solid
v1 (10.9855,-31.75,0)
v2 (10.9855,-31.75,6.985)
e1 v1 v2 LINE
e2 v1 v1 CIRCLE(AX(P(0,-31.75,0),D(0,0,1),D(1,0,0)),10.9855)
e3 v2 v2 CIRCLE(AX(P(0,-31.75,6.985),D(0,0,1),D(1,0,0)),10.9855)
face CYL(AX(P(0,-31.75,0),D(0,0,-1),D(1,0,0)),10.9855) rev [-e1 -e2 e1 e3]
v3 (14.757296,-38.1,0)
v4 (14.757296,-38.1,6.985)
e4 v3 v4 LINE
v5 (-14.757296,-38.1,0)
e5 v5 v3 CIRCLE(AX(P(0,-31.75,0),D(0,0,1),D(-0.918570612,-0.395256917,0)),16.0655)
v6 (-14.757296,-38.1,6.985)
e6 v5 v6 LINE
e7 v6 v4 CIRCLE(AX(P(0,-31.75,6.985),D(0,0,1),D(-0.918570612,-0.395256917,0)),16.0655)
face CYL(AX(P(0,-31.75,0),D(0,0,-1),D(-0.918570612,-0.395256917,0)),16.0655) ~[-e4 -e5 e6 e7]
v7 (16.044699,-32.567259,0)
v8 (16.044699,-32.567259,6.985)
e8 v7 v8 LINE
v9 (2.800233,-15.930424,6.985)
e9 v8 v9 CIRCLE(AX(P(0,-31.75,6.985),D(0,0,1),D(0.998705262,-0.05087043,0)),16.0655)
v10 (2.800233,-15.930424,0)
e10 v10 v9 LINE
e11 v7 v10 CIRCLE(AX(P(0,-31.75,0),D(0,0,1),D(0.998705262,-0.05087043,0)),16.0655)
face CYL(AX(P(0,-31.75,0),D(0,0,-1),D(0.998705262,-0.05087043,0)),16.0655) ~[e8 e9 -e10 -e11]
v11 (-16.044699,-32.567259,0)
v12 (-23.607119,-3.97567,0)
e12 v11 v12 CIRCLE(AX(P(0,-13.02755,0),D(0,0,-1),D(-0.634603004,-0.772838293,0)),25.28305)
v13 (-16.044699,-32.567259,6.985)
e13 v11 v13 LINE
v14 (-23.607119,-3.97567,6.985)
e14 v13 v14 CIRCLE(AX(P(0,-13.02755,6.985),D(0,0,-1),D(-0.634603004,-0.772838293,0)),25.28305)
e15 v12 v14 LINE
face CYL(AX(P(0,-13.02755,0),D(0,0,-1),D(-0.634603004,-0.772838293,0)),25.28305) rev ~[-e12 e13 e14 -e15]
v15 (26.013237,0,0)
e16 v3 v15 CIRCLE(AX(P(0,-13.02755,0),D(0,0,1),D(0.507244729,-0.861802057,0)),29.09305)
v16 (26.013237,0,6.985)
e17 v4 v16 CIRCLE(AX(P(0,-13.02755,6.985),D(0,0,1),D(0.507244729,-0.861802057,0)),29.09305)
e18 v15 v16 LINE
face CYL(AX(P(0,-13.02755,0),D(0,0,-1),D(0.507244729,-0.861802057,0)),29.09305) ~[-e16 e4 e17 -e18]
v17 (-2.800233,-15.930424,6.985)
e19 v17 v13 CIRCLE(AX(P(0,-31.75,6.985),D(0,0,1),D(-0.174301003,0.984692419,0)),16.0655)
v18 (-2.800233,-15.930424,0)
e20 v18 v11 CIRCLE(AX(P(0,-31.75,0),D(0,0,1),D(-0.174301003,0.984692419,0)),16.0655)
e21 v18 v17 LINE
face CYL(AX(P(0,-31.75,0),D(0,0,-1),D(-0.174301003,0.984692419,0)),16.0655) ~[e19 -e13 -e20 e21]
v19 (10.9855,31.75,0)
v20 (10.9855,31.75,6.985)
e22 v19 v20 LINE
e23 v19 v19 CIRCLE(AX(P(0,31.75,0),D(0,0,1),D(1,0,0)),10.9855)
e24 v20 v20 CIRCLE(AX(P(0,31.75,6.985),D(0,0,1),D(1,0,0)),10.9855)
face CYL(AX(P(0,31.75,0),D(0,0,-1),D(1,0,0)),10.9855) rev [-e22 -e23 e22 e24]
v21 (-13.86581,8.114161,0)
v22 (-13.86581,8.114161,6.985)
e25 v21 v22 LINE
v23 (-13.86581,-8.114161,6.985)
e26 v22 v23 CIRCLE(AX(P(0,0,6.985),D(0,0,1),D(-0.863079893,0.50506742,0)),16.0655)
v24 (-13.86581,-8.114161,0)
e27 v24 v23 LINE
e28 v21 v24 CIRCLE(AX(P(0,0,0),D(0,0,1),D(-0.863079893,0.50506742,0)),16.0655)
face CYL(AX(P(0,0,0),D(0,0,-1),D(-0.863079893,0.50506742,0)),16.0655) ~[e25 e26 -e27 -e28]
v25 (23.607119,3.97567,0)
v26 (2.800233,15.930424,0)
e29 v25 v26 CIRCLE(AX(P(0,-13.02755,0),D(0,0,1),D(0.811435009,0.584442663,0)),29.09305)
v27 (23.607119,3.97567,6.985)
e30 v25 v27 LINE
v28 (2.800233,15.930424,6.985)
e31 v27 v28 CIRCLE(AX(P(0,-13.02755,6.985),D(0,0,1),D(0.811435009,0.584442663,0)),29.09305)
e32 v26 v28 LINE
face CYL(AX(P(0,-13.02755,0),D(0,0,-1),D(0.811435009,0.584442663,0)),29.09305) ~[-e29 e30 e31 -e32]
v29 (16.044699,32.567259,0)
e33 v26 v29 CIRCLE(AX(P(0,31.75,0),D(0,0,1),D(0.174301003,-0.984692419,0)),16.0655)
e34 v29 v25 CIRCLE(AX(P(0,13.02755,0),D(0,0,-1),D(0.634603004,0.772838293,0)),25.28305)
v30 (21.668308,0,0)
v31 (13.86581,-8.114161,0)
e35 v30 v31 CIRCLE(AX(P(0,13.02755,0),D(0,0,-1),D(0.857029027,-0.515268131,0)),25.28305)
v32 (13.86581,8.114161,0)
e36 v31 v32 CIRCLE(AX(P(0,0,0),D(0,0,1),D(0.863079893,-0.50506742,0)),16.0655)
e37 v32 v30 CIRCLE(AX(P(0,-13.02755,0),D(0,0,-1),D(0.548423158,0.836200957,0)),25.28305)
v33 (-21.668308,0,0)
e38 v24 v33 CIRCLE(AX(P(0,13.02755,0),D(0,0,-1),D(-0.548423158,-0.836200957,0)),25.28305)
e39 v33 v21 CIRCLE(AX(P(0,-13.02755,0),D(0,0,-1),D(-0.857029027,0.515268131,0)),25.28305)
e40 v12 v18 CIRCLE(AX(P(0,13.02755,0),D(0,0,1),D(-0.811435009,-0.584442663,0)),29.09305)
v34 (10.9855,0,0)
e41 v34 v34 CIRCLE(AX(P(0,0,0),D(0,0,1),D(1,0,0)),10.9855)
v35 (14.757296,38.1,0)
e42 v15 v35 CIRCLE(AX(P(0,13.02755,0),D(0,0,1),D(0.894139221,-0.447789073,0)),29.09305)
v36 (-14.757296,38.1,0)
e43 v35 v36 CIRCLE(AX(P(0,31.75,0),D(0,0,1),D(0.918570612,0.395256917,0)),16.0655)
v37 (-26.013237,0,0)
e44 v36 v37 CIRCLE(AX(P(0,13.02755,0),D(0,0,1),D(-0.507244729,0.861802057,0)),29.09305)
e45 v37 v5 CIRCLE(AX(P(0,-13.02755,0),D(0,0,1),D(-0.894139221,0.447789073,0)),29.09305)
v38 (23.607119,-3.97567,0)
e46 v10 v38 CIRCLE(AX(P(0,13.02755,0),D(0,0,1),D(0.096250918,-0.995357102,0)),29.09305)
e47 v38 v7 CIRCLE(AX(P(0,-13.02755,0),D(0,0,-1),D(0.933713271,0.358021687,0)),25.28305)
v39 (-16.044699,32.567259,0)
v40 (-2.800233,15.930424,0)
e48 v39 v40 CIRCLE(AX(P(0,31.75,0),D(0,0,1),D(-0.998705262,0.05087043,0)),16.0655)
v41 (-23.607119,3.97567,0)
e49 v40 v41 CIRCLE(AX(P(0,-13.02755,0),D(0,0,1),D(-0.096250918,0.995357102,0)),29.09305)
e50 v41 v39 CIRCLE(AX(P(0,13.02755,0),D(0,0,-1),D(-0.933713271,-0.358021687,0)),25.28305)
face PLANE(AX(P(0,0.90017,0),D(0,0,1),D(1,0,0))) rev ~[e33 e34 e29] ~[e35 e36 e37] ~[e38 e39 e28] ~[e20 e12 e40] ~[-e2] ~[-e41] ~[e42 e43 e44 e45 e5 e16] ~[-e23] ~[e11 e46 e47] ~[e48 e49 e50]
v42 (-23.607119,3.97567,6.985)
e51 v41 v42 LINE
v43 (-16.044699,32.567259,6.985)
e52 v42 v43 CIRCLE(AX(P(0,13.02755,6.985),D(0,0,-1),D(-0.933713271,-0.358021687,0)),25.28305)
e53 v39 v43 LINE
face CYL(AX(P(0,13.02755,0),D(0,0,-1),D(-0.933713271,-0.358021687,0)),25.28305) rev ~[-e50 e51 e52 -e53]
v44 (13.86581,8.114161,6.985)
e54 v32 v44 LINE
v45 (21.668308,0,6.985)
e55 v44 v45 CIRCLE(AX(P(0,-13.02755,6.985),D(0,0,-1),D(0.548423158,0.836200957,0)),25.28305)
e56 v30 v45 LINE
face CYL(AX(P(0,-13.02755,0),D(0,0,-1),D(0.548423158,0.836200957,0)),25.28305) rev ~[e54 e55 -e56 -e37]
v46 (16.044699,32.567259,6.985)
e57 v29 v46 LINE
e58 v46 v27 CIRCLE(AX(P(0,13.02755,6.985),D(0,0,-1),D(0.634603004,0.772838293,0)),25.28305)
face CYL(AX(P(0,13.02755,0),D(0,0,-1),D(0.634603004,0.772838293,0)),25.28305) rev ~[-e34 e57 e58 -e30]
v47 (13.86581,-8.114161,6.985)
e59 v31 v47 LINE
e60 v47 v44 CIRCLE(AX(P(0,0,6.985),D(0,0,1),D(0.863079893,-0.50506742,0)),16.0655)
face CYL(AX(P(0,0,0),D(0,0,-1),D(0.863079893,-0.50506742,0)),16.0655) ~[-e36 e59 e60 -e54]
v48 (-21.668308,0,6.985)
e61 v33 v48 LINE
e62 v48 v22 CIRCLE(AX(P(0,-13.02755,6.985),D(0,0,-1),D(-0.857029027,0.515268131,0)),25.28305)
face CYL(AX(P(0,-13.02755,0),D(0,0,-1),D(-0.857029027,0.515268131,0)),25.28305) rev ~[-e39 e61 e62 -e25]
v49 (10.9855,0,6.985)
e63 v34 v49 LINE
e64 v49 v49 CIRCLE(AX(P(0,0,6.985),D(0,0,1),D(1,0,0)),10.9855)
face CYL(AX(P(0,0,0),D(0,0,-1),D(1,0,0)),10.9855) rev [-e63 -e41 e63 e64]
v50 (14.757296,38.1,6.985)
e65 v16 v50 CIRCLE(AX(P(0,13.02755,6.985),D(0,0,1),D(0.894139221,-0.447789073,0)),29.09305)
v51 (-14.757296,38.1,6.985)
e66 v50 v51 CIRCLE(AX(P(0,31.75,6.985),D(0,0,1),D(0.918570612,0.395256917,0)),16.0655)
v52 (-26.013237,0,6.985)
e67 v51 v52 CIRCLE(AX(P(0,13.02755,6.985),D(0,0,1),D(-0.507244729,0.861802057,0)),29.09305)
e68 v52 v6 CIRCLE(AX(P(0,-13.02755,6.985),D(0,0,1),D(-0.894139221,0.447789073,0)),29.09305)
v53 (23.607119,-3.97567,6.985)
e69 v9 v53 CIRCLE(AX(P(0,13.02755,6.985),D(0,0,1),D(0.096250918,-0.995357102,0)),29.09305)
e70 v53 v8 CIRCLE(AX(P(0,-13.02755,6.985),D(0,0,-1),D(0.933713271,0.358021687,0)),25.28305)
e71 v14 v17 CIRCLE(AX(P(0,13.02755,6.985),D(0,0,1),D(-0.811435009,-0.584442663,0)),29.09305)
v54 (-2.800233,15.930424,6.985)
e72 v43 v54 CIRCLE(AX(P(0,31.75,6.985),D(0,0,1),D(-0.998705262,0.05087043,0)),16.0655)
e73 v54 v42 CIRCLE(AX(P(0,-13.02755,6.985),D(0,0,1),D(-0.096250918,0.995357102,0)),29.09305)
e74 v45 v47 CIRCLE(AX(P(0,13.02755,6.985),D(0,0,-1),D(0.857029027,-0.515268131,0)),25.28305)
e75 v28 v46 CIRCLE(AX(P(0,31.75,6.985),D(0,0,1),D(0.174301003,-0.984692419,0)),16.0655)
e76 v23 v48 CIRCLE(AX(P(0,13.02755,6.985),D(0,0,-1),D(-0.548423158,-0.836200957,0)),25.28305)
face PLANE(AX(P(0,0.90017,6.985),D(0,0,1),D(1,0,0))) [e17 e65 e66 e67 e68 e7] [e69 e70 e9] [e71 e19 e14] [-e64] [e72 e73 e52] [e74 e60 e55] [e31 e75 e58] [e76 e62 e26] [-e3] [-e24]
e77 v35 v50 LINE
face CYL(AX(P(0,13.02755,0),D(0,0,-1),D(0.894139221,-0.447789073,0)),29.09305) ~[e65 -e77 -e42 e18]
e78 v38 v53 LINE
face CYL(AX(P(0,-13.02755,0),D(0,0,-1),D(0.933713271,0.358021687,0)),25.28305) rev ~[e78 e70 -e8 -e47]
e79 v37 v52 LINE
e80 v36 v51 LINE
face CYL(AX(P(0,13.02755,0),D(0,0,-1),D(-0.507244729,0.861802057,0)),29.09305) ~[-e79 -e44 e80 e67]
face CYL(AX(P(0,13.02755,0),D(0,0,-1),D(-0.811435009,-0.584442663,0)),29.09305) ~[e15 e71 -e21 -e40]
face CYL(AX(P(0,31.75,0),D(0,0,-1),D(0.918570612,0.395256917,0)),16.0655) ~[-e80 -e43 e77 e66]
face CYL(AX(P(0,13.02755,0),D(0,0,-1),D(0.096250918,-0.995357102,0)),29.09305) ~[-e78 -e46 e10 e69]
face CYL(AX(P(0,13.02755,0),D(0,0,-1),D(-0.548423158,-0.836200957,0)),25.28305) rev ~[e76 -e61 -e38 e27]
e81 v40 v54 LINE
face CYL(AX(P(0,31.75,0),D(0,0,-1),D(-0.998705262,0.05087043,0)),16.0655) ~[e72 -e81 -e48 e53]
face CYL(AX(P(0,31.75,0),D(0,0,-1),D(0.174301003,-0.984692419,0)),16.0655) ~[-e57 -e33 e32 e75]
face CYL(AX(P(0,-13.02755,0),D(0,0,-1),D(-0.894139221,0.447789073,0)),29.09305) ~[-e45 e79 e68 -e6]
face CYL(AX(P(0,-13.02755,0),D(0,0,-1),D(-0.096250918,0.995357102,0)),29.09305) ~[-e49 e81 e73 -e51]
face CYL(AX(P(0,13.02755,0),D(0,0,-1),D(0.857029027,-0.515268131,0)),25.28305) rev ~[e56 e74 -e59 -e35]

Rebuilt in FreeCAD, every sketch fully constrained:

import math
import FreeCAD as App
import Part
import Sketcher

V = App.Vector
Q = App.Units.Quantity

doc = App.newDocument("Part")
body = doc.addObject("PartDesign::Body", "Body")

sketch1 = doc.addObject("Sketcher::SketchObject", "Sketch")
body.addObject(sketch1)
sketch1.AttachmentSupport = (doc.XY_Plane, [""])
sketch1.MapMode = "FlatFace"
sketch1.addGeometry([
    Part.ArcOfCircle(Part.Circle(V(0, -13, 0), V(0, 0, 1), 29), math.radians(-60), math.radians(27)),
    Part.ArcOfCircle(Part.Circle(V(0, 13, 0), V(0, 0, 1), 29), math.radians(-27), math.radians(60)),
    Part.ArcOfCircle(Part.Circle(V(0, 32, 0), V(0, 0, 1), 16), math.radians(23), math.radians(157)),
    Part.ArcOfCircle(Part.Circle(V(0, 13, 0), V(0, 0, 1), 29), math.radians(120), math.radians(207)),
    Part.ArcOfCircle(Part.Circle(V(0, -13, 0), V(0, 0, 1), 29), math.radians(153), math.radians(240)),
    Part.ArcOfCircle(Part.Circle(V(0, -32, 0), V(0, 0, 1), 16), math.radians(-157), math.radians(-23)),
    Part.Circle(V(0, -32, 0), V(0, 0, 1), 11),
    Part.ArcOfCircle(Part.Circle(V(0, -13, 0), V(0, 0, 1), 25), math.radians(123), math.radians(149)),
    Part.ArcOfCircle(Part.Circle(V(0, 0, 0), V(0, 0, 1), 16), math.radians(150), math.radians(210)),
    Part.ArcOfCircle(Part.Circle(V(0, 13, 0), V(0, 0, 1), 25), math.radians(-149), math.radians(-123)),
    Part.ArcOfCircle(Part.Circle(V(0, -32, 0), V(0, 0, 1), 16), math.radians(100), math.radians(183)),
    Part.ArcOfCircle(Part.Circle(V(0, -13, 0), V(0, 0, 1), 25), math.radians(159), math.radians(231)),
    Part.ArcOfCircle(Part.Circle(V(0, 13, 0), V(0, 0, 1), 29), math.radians(-144), math.radians(-96)),
    Part.ArcOfCircle(Part.Circle(V(0, -13, 0), V(0, 0, 1), 25), math.radians(31), math.radians(57)),
    Part.ArcOfCircle(Part.Circle(V(0, 13, 0), V(0, 0, 1), 25), math.radians(-57), math.radians(-31)),
    Part.ArcOfCircle(Part.Circle(V(0, 0, 0), V(0, 0, 1), 16), math.radians(-30), math.radians(30)),
    Part.ArcOfCircle(Part.Circle(V(0, -13, 0), V(0, 0, 1), 25), math.radians(-51), math.radians(21)),
    Part.ArcOfCircle(Part.Circle(V(0, -32, 0), V(0, 0, 1), 16), math.radians(-3), math.radians(80)),
    Part.ArcOfCircle(Part.Circle(V(0, 13, 0), V(0, 0, 1), 29), math.radians(-84), math.radians(-36)),
    Part.ArcOfCircle(Part.Circle(V(0, 32, 0), V(0, 0, 1), 16), math.radians(177), math.radians(260)),
    Part.ArcOfCircle(Part.Circle(V(0, -13, 0), V(0, 0, 1), 29), math.radians(96), math.radians(144)),
    Part.ArcOfCircle(Part.Circle(V(0, 13, 0), V(0, 0, 1), 25), math.radians(129), math.radians(201)),
    Part.Circle(V(0, 0, 0), V(0, 0, 1), 11),
    Part.Circle(V(0, 32, 0), V(0, 0, 1), 11),
    Part.ArcOfCircle(Part.Circle(V(0, 13, 0), V(0, 0, 1), 25), math.radians(-21), math.radians(51)),
    Part.ArcOfCircle(Part.Circle(V(0, -13, 0), V(0, 0, 1), 29), math.radians(36), math.radians(84)),
    Part.ArcOfCircle(Part.Circle(V(0, 32, 0), V(0, 0, 1), 16), math.radians(-80), math.radians(3)),
], False)
sketch1.addConstraint([
    Sketcher.Constraint("Coincident", 0, 2, 1, 1),
    Sketcher.Constraint("Coincident", 1, 2, 2, 1),
    Sketcher.Constraint("Coincident", 2, 2, 3, 1),
    Sketcher.Constraint("Coincident", 3, 2, 4, 1),
    Sketcher.Constraint("Coincident", 4, 2, 5, 1),
    Sketcher.Constraint("Coincident", 5, 2, 0, 1),
    Sketcher.Constraint("Coincident", 7, 1, 8, 1),
    Sketcher.Constraint("Coincident", 8, 2, 9, 2),
    Sketcher.Constraint("Coincident", 9, 1, 7, 2),
    Sketcher.Constraint("Coincident", 10, 2, 11, 2),
    Sketcher.Constraint("Coincident", 11, 1, 12, 1),
    Sketcher.Constraint("Coincident", 12, 2, 10, 1),
    Sketcher.Constraint("Coincident", 13, 1, 14, 2),
    Sketcher.Constraint("Coincident", 14, 1, 15, 1),
    Sketcher.Constraint("Coincident", 15, 2, 13, 2),
    Sketcher.Constraint("Coincident", 16, 1, 17, 1),
    Sketcher.Constraint("Coincident", 17, 2, 18, 1),
    Sketcher.Constraint("Coincident", 18, 2, 16, 2),
    Sketcher.Constraint("Coincident", 19, 2, 20, 1),
    Sketcher.Constraint("Coincident", 20, 2, 21, 2),
    Sketcher.Constraint("Coincident", 21, 1, 19, 1),
    Sketcher.Constraint("Coincident", 24, 1, 25, 1),
    Sketcher.Constraint("Coincident", 25, 2, 26, 1),
    Sketcher.Constraint("Coincident", 26, 2, 24, 2),
    Sketcher.Constraint("Coincident", 8, 3, -1, 1),
    Sketcher.Constraint("Coincident", 15, 3, -1, 1),
    Sketcher.Constraint("Coincident", 22, 3, -1, 1),
    Sketcher.Constraint("Coincident", 3, 3, 1, 3),
    Sketcher.Constraint("Coincident", 4, 3, 0, 3),
    Sketcher.Constraint("Coincident", 6, 3, 5, 3),
    Sketcher.Constraint("Coincident", 7, 3, 0, 3),
    Sketcher.Constraint("Coincident", 9, 3, 1, 3),
    Sketcher.Constraint("Coincident", 10, 3, 5, 3),
    Sketcher.Constraint("Coincident", 11, 3, 0, 3),
    Sketcher.Constraint("Coincident", 12, 3, 1, 3),
    Sketcher.Constraint("Coincident", 13, 3, 0, 3),
    Sketcher.Constraint("Coincident", 14, 3, 1, 3),
    Sketcher.Constraint("Coincident", 16, 3, 0, 3),
    Sketcher.Constraint("Coincident", 17, 3, 5, 3),
    Sketcher.Constraint("Coincident", 18, 3, 1, 3),
    Sketcher.Constraint("Coincident", 19, 3, 2, 3),
    Sketcher.Constraint("Coincident", 20, 3, 0, 3),
    Sketcher.Constraint("Coincident", 21, 3, 1, 3),
    Sketcher.Constraint("Coincident", 23, 3, 2, 3),
    Sketcher.Constraint("Coincident", 24, 3, 1, 3),
    Sketcher.Constraint("Coincident", 25, 3, 0, 3),
    Sketcher.Constraint("Coincident", 26, 3, 2, 3),
    Sketcher.Constraint("Equal", 0, 1),
    Sketcher.Constraint("Equal", 1, 3),
    Sketcher.Constraint("Equal", 3, 4),
    Sketcher.Constraint("Equal", 2, 5),
    Sketcher.Constraint("Equal", 5, 8),
    Sketcher.Constraint("Equal", 7, 9),
    Sketcher.Constraint("Equal", 8, 10),
    Sketcher.Constraint("Equal", 9, 11),
    Sketcher.Constraint("Equal", 4, 12),
    Sketcher.Constraint("Equal", 11, 13),
    Sketcher.Constraint("Equal", 13, 14),
    Sketcher.Constraint("Equal", 10, 15),
    Sketcher.Constraint("Equal", 14, 16),
    Sketcher.Constraint("Equal", 15, 17),
    Sketcher.Constraint("Equal", 12, 18),
    Sketcher.Constraint("Equal", 17, 19),
    Sketcher.Constraint("Equal", 18, 20),
    Sketcher.Constraint("Equal", 16, 21),
    Sketcher.Constraint("Equal", 6, 22),
    Sketcher.Constraint("Equal", 22, 23),
    Sketcher.Constraint("Equal", 21, 24),
    Sketcher.Constraint("Equal", 20, 25),
    Sketcher.Constraint("Equal", 19, 26),
    Sketcher.Constraint("Symmetric", 0, 3, 1, 3, -1, 1),
    Sketcher.Constraint("Symmetric", 2, 3, 5, 3, -1, 1),
    Sketcher.Constraint("Symmetric", 1, 2, 2, 2, -2),
    Sketcher.Constraint("Diameter", 6, Q("0.865 in")),
    Sketcher.Constraint("DistanceY", -1, 1, 1, 2, Q("1.5 in")),
    Sketcher.Constraint("Radius", 2, Q("0.6325 in")),
    Sketcher.Constraint("DistanceY", 5, 3, 2, 3, Q("2.5 in")),
    Sketcher.Constraint("Radius", 0, Q("29.09305 mm")),
    Sketcher.Constraint("Radius", 7, Q("25.28305 mm")),
])
pad1 = doc.addObject("PartDesign::Pad", "Pad")
body.addObject(pad1)
pad1.Profile = sketch1
pad1.Length = Q("0.275 in")

doc.recompute()
